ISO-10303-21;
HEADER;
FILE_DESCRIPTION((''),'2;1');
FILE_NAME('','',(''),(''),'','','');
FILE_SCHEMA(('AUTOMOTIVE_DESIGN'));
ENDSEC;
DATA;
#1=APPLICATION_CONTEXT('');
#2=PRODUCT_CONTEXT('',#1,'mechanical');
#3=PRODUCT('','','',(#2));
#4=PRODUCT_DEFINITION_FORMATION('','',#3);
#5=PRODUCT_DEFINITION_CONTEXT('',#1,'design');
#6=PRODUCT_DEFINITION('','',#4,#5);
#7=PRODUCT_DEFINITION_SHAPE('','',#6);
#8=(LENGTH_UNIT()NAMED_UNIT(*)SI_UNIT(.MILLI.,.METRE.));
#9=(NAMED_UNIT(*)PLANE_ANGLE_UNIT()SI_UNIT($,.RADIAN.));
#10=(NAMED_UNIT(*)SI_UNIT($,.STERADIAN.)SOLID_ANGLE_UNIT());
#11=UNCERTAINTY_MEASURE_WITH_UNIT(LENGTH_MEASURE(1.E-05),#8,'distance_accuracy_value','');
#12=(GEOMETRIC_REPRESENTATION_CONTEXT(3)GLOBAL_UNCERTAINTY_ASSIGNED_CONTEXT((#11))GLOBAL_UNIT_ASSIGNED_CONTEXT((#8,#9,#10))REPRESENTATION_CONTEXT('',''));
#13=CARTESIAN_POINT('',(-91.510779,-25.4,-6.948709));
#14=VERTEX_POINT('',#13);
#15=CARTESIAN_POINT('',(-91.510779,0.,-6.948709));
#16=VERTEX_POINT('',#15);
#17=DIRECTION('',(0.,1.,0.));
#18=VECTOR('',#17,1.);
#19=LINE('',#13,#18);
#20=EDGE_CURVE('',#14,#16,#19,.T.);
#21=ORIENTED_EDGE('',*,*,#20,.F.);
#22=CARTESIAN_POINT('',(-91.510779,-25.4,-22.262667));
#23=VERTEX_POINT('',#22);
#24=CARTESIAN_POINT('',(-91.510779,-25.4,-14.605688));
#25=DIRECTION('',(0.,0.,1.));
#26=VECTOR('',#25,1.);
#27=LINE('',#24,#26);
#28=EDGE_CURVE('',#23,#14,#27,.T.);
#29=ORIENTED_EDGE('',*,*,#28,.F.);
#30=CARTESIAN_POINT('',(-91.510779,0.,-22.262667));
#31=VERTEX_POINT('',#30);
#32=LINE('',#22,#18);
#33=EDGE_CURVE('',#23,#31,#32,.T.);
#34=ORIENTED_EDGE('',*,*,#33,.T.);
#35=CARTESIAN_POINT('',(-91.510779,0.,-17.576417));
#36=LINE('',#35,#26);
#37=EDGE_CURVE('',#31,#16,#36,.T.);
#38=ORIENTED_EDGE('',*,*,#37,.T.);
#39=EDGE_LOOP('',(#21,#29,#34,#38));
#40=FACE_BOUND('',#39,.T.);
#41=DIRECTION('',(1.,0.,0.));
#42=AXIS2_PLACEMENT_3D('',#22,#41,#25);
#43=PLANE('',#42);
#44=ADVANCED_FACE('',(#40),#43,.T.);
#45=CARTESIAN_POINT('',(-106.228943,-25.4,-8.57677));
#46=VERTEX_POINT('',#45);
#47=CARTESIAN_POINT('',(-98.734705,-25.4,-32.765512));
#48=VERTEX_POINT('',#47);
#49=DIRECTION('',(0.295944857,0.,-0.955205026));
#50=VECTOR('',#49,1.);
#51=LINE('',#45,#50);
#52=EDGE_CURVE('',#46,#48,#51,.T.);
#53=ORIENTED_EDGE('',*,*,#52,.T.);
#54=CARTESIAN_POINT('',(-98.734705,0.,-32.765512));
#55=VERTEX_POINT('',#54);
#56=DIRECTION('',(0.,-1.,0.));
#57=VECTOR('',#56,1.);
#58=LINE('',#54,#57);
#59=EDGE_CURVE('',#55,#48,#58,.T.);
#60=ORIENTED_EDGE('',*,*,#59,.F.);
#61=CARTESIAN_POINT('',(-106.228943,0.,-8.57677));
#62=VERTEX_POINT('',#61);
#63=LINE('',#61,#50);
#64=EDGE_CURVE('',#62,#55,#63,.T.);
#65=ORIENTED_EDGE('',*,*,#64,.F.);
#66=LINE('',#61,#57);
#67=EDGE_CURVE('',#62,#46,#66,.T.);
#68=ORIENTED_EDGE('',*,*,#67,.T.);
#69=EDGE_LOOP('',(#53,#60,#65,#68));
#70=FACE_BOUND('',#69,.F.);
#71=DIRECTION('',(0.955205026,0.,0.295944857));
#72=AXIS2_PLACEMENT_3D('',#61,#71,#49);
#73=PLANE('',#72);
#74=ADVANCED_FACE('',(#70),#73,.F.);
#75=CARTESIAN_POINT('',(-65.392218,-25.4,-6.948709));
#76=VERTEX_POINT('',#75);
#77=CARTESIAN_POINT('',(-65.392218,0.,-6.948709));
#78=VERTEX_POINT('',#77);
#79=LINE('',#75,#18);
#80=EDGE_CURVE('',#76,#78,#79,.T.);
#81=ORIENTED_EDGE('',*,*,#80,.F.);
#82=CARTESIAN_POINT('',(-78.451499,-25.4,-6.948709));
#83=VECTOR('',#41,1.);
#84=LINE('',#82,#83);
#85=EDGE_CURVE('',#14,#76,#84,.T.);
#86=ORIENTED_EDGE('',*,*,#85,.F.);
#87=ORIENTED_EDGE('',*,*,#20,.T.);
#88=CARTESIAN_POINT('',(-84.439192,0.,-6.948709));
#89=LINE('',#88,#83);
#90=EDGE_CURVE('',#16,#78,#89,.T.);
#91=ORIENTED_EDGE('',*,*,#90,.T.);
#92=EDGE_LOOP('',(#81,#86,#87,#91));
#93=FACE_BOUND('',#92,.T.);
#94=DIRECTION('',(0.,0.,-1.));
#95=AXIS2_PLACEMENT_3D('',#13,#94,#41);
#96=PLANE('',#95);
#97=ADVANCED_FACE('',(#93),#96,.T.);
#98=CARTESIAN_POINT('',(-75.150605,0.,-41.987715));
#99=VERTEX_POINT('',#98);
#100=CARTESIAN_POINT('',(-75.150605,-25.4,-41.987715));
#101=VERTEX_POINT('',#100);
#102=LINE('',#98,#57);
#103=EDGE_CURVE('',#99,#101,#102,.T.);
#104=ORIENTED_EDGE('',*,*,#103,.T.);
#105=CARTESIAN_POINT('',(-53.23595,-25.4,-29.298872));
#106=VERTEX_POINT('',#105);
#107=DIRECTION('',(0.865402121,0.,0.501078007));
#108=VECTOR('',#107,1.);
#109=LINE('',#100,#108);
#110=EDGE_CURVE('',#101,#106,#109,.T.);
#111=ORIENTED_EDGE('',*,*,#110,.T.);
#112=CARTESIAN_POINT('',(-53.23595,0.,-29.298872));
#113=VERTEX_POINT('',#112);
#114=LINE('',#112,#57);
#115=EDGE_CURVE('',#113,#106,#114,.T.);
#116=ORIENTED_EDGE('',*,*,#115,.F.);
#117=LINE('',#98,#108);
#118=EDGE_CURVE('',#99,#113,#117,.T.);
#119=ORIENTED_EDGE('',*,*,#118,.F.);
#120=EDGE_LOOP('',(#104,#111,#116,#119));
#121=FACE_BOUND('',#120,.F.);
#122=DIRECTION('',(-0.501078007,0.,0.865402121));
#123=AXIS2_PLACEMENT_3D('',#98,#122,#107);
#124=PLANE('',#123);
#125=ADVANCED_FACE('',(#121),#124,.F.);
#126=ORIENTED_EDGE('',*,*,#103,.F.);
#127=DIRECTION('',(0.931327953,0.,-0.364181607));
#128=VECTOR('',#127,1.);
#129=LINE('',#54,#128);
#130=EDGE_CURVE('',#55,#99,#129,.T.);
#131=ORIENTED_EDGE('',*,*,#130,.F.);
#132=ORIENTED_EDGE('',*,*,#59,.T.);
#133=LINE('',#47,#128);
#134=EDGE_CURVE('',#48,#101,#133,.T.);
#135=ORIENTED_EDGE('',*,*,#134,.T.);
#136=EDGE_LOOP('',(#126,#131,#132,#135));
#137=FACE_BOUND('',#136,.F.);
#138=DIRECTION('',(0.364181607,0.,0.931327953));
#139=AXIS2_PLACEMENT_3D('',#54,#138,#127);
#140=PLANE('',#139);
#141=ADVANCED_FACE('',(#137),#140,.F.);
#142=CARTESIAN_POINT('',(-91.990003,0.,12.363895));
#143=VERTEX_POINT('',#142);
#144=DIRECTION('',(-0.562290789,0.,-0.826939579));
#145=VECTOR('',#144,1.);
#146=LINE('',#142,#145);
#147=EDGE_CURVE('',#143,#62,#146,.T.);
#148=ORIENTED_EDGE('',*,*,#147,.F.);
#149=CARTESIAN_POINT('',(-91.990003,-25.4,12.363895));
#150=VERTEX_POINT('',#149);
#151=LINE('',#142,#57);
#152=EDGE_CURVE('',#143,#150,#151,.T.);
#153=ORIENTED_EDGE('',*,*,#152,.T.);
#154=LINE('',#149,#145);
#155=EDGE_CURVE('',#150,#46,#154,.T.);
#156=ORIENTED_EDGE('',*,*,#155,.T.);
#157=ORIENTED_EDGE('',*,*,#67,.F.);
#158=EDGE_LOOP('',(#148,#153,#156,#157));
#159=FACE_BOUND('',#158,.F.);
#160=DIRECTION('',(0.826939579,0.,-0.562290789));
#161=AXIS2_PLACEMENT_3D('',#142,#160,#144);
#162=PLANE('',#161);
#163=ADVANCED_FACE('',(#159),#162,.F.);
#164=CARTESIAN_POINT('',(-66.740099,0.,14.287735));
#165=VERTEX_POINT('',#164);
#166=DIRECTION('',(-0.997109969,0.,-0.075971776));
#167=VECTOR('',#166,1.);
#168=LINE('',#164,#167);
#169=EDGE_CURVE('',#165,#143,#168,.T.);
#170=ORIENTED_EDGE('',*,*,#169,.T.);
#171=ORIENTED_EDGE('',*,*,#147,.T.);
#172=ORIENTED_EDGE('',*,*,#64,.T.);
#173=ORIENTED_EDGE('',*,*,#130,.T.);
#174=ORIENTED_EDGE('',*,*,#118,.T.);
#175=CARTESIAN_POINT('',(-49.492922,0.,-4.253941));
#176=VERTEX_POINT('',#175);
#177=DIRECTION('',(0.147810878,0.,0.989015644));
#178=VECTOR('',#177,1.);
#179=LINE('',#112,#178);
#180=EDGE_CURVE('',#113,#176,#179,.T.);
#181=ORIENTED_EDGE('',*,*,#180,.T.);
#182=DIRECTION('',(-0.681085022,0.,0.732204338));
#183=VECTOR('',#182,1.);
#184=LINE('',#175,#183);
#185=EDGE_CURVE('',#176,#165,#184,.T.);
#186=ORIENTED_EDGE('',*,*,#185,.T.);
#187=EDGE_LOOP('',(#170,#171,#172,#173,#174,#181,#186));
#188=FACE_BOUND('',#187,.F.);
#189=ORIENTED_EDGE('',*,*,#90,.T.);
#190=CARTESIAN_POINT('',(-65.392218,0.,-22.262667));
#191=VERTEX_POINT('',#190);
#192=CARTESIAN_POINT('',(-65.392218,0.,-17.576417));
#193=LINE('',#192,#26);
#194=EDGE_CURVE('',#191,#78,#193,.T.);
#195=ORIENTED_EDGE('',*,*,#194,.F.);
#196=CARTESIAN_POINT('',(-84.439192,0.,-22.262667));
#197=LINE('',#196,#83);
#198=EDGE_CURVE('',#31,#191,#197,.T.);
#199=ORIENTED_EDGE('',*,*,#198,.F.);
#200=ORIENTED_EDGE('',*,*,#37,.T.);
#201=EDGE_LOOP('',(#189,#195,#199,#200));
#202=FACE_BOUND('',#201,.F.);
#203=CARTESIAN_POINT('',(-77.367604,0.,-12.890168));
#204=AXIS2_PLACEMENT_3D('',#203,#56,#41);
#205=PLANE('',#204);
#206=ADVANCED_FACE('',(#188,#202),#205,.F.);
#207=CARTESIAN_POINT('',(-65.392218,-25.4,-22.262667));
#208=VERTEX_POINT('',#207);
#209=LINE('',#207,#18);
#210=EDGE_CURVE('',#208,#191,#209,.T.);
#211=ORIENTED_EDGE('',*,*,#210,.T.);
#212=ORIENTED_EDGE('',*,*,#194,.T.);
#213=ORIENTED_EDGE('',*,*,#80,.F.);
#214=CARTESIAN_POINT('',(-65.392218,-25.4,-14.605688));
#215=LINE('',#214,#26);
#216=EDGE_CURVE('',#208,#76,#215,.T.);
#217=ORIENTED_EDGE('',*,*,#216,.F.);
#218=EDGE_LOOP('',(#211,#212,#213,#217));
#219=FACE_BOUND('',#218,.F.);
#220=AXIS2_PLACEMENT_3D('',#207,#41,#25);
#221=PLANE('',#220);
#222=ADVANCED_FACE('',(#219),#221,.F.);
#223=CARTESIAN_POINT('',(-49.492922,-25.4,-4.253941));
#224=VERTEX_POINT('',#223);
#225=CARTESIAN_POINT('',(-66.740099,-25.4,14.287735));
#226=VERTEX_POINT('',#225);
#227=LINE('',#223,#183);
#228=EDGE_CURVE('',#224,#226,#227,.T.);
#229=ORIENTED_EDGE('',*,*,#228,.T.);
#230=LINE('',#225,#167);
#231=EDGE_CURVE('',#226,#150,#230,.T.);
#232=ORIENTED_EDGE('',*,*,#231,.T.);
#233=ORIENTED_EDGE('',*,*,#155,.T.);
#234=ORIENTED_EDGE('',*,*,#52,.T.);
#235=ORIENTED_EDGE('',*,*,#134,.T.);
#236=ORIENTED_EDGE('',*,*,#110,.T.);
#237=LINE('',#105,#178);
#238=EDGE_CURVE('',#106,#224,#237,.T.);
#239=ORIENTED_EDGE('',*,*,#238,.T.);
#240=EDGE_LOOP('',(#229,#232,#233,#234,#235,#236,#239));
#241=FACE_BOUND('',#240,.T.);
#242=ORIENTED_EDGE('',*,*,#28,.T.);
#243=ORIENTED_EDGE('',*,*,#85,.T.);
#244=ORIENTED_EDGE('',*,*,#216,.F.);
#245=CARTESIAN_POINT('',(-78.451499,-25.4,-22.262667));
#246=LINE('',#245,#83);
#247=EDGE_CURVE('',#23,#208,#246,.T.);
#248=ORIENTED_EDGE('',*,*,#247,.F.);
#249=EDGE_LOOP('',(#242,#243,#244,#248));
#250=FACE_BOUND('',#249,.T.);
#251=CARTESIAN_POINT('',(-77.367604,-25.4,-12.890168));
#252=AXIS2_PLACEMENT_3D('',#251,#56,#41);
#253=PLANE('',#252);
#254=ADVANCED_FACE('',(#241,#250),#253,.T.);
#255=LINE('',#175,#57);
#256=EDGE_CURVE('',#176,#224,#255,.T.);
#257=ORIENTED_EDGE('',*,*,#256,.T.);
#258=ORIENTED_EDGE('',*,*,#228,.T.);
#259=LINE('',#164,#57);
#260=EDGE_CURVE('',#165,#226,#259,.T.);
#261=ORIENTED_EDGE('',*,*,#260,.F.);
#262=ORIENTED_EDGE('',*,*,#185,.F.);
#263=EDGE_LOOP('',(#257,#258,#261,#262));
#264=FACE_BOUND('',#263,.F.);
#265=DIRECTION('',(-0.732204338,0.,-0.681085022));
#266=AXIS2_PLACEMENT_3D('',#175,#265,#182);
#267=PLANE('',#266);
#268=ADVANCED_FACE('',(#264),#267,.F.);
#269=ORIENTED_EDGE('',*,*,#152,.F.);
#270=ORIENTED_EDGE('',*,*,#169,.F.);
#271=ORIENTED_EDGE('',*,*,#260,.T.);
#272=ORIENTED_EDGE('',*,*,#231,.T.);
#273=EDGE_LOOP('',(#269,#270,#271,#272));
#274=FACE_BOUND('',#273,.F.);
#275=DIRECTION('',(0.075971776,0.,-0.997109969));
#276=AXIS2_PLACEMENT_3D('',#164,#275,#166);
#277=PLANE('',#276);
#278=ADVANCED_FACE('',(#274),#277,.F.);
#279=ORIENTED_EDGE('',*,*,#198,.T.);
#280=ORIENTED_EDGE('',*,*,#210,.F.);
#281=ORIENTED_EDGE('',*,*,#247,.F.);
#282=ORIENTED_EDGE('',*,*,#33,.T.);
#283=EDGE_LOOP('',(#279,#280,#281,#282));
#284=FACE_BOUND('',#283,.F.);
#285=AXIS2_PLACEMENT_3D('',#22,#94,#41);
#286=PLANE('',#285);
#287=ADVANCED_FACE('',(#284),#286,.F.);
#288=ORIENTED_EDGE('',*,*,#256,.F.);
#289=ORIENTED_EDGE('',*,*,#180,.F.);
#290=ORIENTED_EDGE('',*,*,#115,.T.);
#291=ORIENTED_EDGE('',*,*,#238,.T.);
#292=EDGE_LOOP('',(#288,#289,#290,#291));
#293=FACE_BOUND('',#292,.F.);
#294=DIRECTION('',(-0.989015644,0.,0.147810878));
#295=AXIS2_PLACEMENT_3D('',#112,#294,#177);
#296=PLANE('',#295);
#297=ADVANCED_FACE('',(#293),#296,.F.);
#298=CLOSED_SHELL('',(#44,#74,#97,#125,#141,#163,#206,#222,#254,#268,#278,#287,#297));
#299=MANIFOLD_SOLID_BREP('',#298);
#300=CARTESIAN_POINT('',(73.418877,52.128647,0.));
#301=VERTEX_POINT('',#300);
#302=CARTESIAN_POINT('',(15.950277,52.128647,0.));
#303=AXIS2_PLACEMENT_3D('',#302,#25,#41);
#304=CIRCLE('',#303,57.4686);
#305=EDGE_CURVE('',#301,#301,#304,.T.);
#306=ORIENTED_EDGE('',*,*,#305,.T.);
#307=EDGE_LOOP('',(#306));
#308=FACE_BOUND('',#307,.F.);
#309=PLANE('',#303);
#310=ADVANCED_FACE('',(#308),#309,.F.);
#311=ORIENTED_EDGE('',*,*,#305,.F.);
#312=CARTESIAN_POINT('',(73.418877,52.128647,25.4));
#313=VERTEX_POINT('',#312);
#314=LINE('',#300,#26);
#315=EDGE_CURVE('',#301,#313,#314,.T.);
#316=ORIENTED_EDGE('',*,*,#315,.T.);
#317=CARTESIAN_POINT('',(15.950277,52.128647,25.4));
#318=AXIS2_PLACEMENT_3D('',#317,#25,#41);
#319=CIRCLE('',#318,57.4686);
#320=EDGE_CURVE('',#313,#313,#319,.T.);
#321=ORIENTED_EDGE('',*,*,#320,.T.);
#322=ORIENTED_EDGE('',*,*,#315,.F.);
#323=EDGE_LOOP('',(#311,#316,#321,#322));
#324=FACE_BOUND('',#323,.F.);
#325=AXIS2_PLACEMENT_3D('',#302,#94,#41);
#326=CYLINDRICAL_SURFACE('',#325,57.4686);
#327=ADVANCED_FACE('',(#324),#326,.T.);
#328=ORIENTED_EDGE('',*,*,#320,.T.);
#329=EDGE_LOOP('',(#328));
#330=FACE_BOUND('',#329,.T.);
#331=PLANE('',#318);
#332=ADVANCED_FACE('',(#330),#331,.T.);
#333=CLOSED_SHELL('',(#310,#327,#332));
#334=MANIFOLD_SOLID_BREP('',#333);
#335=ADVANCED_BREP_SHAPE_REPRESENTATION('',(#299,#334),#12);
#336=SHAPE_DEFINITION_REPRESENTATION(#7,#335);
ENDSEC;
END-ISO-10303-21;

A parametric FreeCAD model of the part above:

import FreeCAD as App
import Part
import Sketcher

V = App.Vector
Q = App.Units.Quantity


def add_polygon(sketch, points):
    """Adds a closed chain of lines whose ends are joined by coincident constraints."""
    first, n = sketch.GeometryCount, len(points)
    for a, b in zip(points, points[1:] + points[:1]):
        sketch.addGeometry(Part.LineSegment(App.Vector(*a, 0), App.Vector(*b, 0)), False)
    for i in range(n):
        sketch.addConstraint(Sketcher.Constraint("Coincident", first + i, 2, first + (i + 1) % n, 1))

doc = App.newDocument("Part")
body = doc.addObject("PartDesign::Body", "Body")

# Sketch on XZ plane
sketch1 = body.newObject("Sketcher::SketchObject", "Sketch")
sketch1.AttachmentSupport = (doc.getObject("XZ_Plane"), [""])
sketch1.MapMode = "FlatFace"
add_polygon(sketch1, [(-49, -4), (-67, 14), (-92, 12), (-106, -9), (-99, -33), (-75, -42), (-53, -29)])  # lines 0-6
sketch1.addConstraint([
    Sketcher.Constraint("Equal", 0, 1),
    Sketcher.Constraint("Equal", 1, 2),
    Sketcher.Constraint("Equal", 2, 3),
    Sketcher.Constraint("Equal", 3, 4),
    Sketcher.Constraint("Equal", 4, 5),
    Sketcher.Constraint("Equal", 5, 6),
    Sketcher.Constraint("DistanceX", 0, 2, -1, 1, 66.740099),
    Sketcher.Constraint("DistanceX", 3, 2, 4, 2, 23.5841),
    Sketcher.Constraint("DistanceX", 1, 2, 4, 2, 16.839398),
    Sketcher.Constraint("DistanceY", 5, 2, 2, 2, 20.722102),
    Sketcher.Constraint("Distance", 0, 25.32309),
    Sketcher.Constraint("DistanceY", 2, 2, -1, 1, 8.57677),
    Sketcher.Constraint("DistanceX", 5, 2, -1, 1, 53.23595),
    Sketcher.Constraint("DistanceY", 6, 2, -1, 1, 4.253941),
])
pad1 = body.newObject("PartDesign::Pad", "Pad")
pad1.Profile = sketch1
pad1.Length = Q("1 in")

# Sketch on XZ plane
sketch2 = body.newObject("Sketcher::SketchObject", "Sketch001")
sketch2.AttachmentSupport = (doc.getObject("XZ_Plane"), [""])
sketch2.MapMode = "FlatFace"
sketch2.AttachmentOffset = App.Placement(V(0, 0, 1 * 25.4), App.Rotation())
add_polygon(sketch2, [(-92, -7), (-92, -22), (-65, -22), (-65, -7)])  # lines 0-3
sketch2.addConstraint([
    Sketcher.Constraint("Vertical", 0),
    Sketcher.Constraint("Horizontal", 1),
    Sketcher.Constraint("Vertical", 2),
    Sketcher.Constraint("Horizontal", 3),
    Sketcher.Constraint("DistanceX", 1, 1, 1, 2, 26.118561),
    Sketcher.Constraint("DistanceY", 0, 2, 0, 1, 15.313957),
    Sketcher.Constraint("DistanceX", 0, 2, -1, 1, 91.510779),
    Sketcher.Constraint("DistanceY", 2, 2, -1, 1, 6.948709),
])
pocket1 = body.newObject("PartDesign::Pocket", "Pocket")
pocket1.Profile = sketch2
pocket1.Type = "ThroughAll"
body2 = doc.addObject("PartDesign::Body", "Body001")

# Sketch on XY plane
sketch3 = body2.newObject("Sketcher::SketchObject", "Sketch002")
sketch3.AttachmentSupport = (doc.getObject("XY_Plane001"), [""])
sketch3.MapMode = "FlatFace"
sketch3.addGeometry(Part.Circle(V(16, 52, 0), V(0, 0, 1), 57), False)
sketch3.addConstraint([
    Sketcher.Constraint("Diameter", 0, 114.9372),
    Sketcher.Constraint("DistanceX", -1, 1, 0, 3, 15.950277),
    Sketcher.Constraint("DistanceY", -1, 1, 0, 3, 52.128647),
])
pad2 = body2.newObject("PartDesign::Pad", "Pad001")
pad2.Profile = sketch3
pad2.Length = Q("1 in")

doc.recompute()
